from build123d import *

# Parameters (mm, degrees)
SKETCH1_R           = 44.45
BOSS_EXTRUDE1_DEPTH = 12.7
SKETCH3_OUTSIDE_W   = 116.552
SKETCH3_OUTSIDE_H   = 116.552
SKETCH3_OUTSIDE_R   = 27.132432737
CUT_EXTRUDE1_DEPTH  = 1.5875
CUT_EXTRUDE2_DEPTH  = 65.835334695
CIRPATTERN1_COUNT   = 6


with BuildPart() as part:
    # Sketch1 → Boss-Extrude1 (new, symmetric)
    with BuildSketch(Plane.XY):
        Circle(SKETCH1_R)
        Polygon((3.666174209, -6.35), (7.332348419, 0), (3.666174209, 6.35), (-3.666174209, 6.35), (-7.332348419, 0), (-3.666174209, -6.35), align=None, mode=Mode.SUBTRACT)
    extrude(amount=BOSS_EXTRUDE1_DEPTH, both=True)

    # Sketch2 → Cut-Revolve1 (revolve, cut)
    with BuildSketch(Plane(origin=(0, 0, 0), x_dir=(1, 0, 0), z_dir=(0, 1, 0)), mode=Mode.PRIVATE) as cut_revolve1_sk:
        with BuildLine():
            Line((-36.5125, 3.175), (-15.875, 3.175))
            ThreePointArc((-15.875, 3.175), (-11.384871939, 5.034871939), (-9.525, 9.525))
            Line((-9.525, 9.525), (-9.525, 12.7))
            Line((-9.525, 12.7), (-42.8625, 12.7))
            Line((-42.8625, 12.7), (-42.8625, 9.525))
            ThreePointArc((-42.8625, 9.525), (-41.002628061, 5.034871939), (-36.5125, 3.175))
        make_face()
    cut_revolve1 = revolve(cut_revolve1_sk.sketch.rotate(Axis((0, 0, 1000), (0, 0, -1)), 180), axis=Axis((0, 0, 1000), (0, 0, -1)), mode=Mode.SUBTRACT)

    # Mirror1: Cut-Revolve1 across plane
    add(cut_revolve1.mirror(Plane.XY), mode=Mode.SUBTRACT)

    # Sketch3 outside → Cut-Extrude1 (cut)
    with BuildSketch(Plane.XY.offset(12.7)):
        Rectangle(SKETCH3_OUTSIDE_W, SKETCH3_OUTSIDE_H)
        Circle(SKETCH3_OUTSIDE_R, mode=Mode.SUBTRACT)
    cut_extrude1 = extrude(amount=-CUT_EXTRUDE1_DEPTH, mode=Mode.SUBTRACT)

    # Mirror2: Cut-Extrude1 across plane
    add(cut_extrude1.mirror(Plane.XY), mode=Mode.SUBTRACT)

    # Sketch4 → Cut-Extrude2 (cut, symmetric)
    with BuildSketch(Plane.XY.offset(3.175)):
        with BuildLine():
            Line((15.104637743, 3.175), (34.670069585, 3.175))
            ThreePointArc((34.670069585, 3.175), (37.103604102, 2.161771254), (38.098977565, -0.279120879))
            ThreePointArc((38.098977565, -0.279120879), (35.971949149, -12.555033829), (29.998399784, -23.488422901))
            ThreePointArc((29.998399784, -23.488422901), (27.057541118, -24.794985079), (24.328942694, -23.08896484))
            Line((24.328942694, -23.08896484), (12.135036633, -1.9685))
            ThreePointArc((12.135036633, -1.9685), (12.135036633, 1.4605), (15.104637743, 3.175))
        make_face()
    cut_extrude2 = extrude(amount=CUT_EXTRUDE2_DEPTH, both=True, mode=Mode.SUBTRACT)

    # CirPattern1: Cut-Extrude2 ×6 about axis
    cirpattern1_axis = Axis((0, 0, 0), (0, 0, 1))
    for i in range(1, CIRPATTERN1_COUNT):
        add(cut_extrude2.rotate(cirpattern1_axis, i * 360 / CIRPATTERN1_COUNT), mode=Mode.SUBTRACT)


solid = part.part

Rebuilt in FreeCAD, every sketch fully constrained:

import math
import FreeCAD as App
import Part
import Sketcher

V = App.Vector
Q = App.Units.Quantity

doc = App.newDocument("Part")
body = doc.addObject("PartDesign::Body", "Body")

# Sketch on XY plane
sketch1 = body.newObject("Sketcher::SketchObject", "Sketch")
sketch1.AttachmentSupport = (doc.getObject("XY_Plane"), [""])
sketch1.MapMode = "FlatFace"
sketch1.addGeometry([
    Part.Circle(V(0, 0, 0), V(0, 0, 1), 44),  # 0
    Part.LineSegment(V(7, 0, 0), V(4, -6, 0)),  # 1
    Part.LineSegment(V(4, -6, 0), V(-4, -6, 0)),  # 2
    Part.LineSegment(V(-4, -6, 0), V(-7, 0, 0)),  # 3
    Part.LineSegment(V(-7, 0, 0), V(-4, 6, 0)),  # 4
    Part.LineSegment(V(-4, 6, 0), V(4, 6, 0)),  # 5
    Part.LineSegment(V(4, 6, 0), V(7, 0, 0)),  # 6
], False)
sketch1.addConstraint([
    Sketcher.Constraint("Coincident", 1, 2, 2, 1),
    Sketcher.Constraint("Coincident", 2, 2, 3, 1),
    Sketcher.Constraint("Coincident", 3, 2, 4, 1),
    Sketcher.Constraint("Coincident", 4, 2, 5, 1),
    Sketcher.Constraint("Coincident", 5, 2, 6, 1),
    Sketcher.Constraint("Coincident", 6, 2, 1, 1),
    Sketcher.Constraint("Horizontal", 2),
    Sketcher.Constraint("Horizontal", 5),
    Sketcher.Constraint("Coincident", 0, 3, -1, 1),
    Sketcher.Constraint("Symmetric", 1, 2, 4, 2, -1, 1),
    Sketcher.Constraint("Symmetric", 3, 2, 6, 2, -1, 1),
    Sketcher.Constraint("PointOnObject", 3, 2, -1),
    Sketcher.Constraint("Parallel", 3, 6),
    Sketcher.Constraint("Vertical", 2, 2, 4, 2),
    Sketcher.Constraint("Diameter", 0, Q("3.5 in")),
    Sketcher.Constraint("Angle", 1, Q("-120 deg")),
    Sketcher.Constraint("DistanceY", 2, 2, 4, 2, Q("0.5 in")),
    Sketcher.Constraint("DistanceX", 2, 2, 2, 1, Q("7.332348 mm")),
])
pad1 = body.newObject("PartDesign::Pad", "Pad")
pad1.Profile = sketch1
pad1.Length = Q("1 in")
pad1.Midplane = True

# Sketch on XZ plane
sketch2 = body.newObject("Sketcher::SketchObject", "Sketch001")
sketch2.AttachmentSupport = (doc.getObject("XZ_Plane"), [""])
sketch2.MapMode = "FlatFace"
sketch2.addGeometry([
    Part.LineSegment(V(-36.5, -3.2, 0), V(-15.9, -3.2, 0)),  # 0
    Part.ArcOfCircle(Part.Circle(V(-15.9, -9.5, 0), V(0, 0, 1), 6.3), math.radians(0), math.radians(90)),  # 1
    Part.LineSegment(V(-9.5, -9.5, 0), V(-9.5, -12.7, 0)),  # 2
    Part.LineSegment(V(-9.5, -12.7, 0), V(-42.9, -12.7, 0)),  # 3
    Part.LineSegment(V(-42.9, -12.7, 0), V(-42.9, -9.5, 0)),  # 4
    Part.ArcOfCircle(Part.Circle(V(-36.5, -9.5, 0), V(0, 0, 1), 6.3), math.radians(90), math.radians(180)),  # 5
], False)
sketch2.addConstraint([
    Sketcher.Constraint("Tangent", 0, 2, 1, 2),
    Sketcher.Constraint("Tangent", 1, 1, 2, 1),
    Sketcher.Constraint("Coincident", 2, 2, 3, 1),
    Sketcher.Constraint("Coincident", 3, 2, 4, 1),
    Sketcher.Constraint("Tangent", 4, 2, 5, 2),
    Sketcher.Constraint("Tangent", 5, 1, 0, 1),
    Sketcher.Constraint("Horizontal", 0),
    Sketcher.Constraint("Vertical", 2),
    Sketcher.Constraint("Horizontal", 3),
    Sketcher.Constraint("Vertical", 4),
    Sketcher.Constraint("Equal", 1, 5),
    Sketcher.Constraint("Radius", 1, Q("0.25 in")),
    Sketcher.Constraint("DistanceY", 2, 2, -1, 1, Q("0.5 in")),
    Sketcher.Constraint("DistanceX", 0, 1, 0, 2, Q("0.8125 in")),
    Sketcher.Constraint("DistanceY", 2, 2, 2, 1, Q("0.125 in")),
    Sketcher.Constraint("DistanceX", 1, 3, -1, 1, Q("0.625 in")),
])
groove = body.newObject("PartDesign::Groove", "Groove")
groove.Profile = sketch2
groove.ReferenceAxis = (sketch2, ["V_Axis"])
groove.Angle = 360
doc.recompute()

mirrored = body.newObject("PartDesign::Mirrored", "Mirrored")
mirrored.Originals = [groove]
mirrored.MirrorPlane = (doc.getObject("XY_Plane"), [""])
body.Tip = mirrored

# Sketch on XY plane
sketch3 = body.newObject("Sketcher::SketchObject", "Sketch002")
sketch3.AttachmentSupport = (doc.getObject("XY_Plane"), [""])
sketch3.MapMode = "FlatFace"
sketch3.AttachmentOffset = App.Placement(V(0, 0, 0.5 * 25.4), App.Rotation())
sketch3.addGeometry([
    Part.LineSegment(V(-58, 58, 0), V(-58, -58, 0)),  # 0
    Part.LineSegment(V(-58, -58, 0), V(58, -58, 0)),  # 1
    Part.LineSegment(V(58, -58, 0), V(58, 58, 0)),  # 2
    Part.LineSegment(V(58, 58, 0), V(-58, 58, 0)),  # 3
    Part.Circle(V(0, 0, 0), V(0, 0, 1), 27),  # 4
], False)
sketch3.addConstraint([
    Sketcher.Constraint("Coincident", 0, 2, 1, 1),
    Sketcher.Constraint("Coincident", 1, 2, 2, 1),
    Sketcher.Constraint("Coincident", 2, 2, 3, 1),
    Sketcher.Constraint("Coincident", 3, 2, 0, 1),
    Sketcher.Constraint("Vertical", 0),
    Sketcher.Constraint("Horizontal", 1),
    Sketcher.Constraint("Vertical", 2),
    Sketcher.Constraint("Horizontal", 3),
    Sketcher.Constraint("Coincident", 4, 3, -1, 1),
    Sketcher.Constraint("Symmetric", 0, 2, 2, 2, -1, 1),
    Sketcher.Constraint("Equal", 3, 0),
    Sketcher.Constraint("Diameter", 4, Q("54.264865 mm")),
    Sketcher.Constraint("DistanceX", 1, 1, 1, 2, Q("116.552 mm")),
])
pocket1 = body.newObject("PartDesign::Pocket", "Pocket")
pocket1.Profile = sketch3
pocket1.Length = Q("0.0625 in")
doc.recompute()

mirrored2 = body.newObject("PartDesign::Mirrored", "Mirrored001")
mirrored2.Originals = [pocket1]
mirrored2.MirrorPlane = (doc.getObject("XY_Plane"), [""])
body.Tip = mirrored2

# Sketch on XY plane
sketch4 = body.newObject("Sketcher::SketchObject", "Sketch003")
sketch4.AttachmentSupport = (doc.getObject("XY_Plane"), [""])
sketch4.MapMode = "FlatFace"
sketch4.AttachmentOffset = App.Placement(V(0, 0, 0.125 * 25.4), App.Rotation())
sketch4.addGeometry([
    Part.LineSegment(V(34.7, 3.2, 0), V(15.1, 3.2, 0)),  # 0
    Part.ArcOfCircle(Part.Circle(V(15.1, -0.3, 0), V(0, 0, 1), 3.4), math.radians(90), math.radians(210)),  # 1
    Part.LineSegment(V(12.1, -2, 0), V(24.3, -23.1, 0)),  # 2
    Part.ArcOfCircle(Part.Circle(V(27.3, -21.4, 0), V(0, 0, 1), 3.4), math.radians(-150), math.radians(-38)),  # 3
    Part.ArcOfCircle(Part.Circle(V(0, 0, 0), V(0, 0, 1), 38.1), math.radians(-38), math.radians(0)),  # 4
    Part.ArcOfCircle(Part.Circle(V(34.7, -0.3, 0), V(0, 0, 1), 3.4), math.radians(0), math.radians(90)),  # 5
], False)
sketch4.addConstraint([
    Sketcher.Constraint("Tangent", 0, 2, 1, 1),
    Sketcher.Constraint("Tangent", 1, 2, 2, 1),
    Sketcher.Constraint("Tangent", 2, 2, 3, 1),
    Sketcher.Constraint("Tangent", 3, 2, 4, 1),
    Sketcher.Constraint("Tangent", 4, 2, 5, 1),
    Sketcher.Constraint("Tangent", 5, 2, 0, 1),
    Sketcher.Constraint("Horizontal", 0),
    Sketcher.Constraint("Coincident", 4, 3, -1, 1),
    Sketcher.Constraint("Equal", 1, 3),
    Sketcher.Constraint("Equal", 3, 5),
    Sketcher.Constraint("Radius", 4, Q("1.5 in")),
    Sketcher.Constraint("Angle", 2, Q("-60 deg")),
    Sketcher.Constraint("Radius", 1, Q("0.135 in")),
    Sketcher.Constraint("DistanceY", 1, 3, -1, 1, Q("0.01 in")),
    Sketcher.Constraint("DistanceX", 0, 2, 0, 1, Q("19.565432 mm")),
])
pocket2 = body.newObject("PartDesign::Pocket", "Pocket001")
pocket2.Profile = sketch4
pocket2.Length = 131.670669
pocket2.Midplane = True
doc.recompute()

polarpattern = body.newObject("PartDesign::PolarPattern", "PolarPattern")
polarpattern.Originals = [pocket2]
polarpattern.Axis = (doc.getObject("Z_Axis"), [""])
polarpattern.Angle = 360
polarpattern.Occurrences = 6
body.Tip = polarpattern

doc.recompute()
